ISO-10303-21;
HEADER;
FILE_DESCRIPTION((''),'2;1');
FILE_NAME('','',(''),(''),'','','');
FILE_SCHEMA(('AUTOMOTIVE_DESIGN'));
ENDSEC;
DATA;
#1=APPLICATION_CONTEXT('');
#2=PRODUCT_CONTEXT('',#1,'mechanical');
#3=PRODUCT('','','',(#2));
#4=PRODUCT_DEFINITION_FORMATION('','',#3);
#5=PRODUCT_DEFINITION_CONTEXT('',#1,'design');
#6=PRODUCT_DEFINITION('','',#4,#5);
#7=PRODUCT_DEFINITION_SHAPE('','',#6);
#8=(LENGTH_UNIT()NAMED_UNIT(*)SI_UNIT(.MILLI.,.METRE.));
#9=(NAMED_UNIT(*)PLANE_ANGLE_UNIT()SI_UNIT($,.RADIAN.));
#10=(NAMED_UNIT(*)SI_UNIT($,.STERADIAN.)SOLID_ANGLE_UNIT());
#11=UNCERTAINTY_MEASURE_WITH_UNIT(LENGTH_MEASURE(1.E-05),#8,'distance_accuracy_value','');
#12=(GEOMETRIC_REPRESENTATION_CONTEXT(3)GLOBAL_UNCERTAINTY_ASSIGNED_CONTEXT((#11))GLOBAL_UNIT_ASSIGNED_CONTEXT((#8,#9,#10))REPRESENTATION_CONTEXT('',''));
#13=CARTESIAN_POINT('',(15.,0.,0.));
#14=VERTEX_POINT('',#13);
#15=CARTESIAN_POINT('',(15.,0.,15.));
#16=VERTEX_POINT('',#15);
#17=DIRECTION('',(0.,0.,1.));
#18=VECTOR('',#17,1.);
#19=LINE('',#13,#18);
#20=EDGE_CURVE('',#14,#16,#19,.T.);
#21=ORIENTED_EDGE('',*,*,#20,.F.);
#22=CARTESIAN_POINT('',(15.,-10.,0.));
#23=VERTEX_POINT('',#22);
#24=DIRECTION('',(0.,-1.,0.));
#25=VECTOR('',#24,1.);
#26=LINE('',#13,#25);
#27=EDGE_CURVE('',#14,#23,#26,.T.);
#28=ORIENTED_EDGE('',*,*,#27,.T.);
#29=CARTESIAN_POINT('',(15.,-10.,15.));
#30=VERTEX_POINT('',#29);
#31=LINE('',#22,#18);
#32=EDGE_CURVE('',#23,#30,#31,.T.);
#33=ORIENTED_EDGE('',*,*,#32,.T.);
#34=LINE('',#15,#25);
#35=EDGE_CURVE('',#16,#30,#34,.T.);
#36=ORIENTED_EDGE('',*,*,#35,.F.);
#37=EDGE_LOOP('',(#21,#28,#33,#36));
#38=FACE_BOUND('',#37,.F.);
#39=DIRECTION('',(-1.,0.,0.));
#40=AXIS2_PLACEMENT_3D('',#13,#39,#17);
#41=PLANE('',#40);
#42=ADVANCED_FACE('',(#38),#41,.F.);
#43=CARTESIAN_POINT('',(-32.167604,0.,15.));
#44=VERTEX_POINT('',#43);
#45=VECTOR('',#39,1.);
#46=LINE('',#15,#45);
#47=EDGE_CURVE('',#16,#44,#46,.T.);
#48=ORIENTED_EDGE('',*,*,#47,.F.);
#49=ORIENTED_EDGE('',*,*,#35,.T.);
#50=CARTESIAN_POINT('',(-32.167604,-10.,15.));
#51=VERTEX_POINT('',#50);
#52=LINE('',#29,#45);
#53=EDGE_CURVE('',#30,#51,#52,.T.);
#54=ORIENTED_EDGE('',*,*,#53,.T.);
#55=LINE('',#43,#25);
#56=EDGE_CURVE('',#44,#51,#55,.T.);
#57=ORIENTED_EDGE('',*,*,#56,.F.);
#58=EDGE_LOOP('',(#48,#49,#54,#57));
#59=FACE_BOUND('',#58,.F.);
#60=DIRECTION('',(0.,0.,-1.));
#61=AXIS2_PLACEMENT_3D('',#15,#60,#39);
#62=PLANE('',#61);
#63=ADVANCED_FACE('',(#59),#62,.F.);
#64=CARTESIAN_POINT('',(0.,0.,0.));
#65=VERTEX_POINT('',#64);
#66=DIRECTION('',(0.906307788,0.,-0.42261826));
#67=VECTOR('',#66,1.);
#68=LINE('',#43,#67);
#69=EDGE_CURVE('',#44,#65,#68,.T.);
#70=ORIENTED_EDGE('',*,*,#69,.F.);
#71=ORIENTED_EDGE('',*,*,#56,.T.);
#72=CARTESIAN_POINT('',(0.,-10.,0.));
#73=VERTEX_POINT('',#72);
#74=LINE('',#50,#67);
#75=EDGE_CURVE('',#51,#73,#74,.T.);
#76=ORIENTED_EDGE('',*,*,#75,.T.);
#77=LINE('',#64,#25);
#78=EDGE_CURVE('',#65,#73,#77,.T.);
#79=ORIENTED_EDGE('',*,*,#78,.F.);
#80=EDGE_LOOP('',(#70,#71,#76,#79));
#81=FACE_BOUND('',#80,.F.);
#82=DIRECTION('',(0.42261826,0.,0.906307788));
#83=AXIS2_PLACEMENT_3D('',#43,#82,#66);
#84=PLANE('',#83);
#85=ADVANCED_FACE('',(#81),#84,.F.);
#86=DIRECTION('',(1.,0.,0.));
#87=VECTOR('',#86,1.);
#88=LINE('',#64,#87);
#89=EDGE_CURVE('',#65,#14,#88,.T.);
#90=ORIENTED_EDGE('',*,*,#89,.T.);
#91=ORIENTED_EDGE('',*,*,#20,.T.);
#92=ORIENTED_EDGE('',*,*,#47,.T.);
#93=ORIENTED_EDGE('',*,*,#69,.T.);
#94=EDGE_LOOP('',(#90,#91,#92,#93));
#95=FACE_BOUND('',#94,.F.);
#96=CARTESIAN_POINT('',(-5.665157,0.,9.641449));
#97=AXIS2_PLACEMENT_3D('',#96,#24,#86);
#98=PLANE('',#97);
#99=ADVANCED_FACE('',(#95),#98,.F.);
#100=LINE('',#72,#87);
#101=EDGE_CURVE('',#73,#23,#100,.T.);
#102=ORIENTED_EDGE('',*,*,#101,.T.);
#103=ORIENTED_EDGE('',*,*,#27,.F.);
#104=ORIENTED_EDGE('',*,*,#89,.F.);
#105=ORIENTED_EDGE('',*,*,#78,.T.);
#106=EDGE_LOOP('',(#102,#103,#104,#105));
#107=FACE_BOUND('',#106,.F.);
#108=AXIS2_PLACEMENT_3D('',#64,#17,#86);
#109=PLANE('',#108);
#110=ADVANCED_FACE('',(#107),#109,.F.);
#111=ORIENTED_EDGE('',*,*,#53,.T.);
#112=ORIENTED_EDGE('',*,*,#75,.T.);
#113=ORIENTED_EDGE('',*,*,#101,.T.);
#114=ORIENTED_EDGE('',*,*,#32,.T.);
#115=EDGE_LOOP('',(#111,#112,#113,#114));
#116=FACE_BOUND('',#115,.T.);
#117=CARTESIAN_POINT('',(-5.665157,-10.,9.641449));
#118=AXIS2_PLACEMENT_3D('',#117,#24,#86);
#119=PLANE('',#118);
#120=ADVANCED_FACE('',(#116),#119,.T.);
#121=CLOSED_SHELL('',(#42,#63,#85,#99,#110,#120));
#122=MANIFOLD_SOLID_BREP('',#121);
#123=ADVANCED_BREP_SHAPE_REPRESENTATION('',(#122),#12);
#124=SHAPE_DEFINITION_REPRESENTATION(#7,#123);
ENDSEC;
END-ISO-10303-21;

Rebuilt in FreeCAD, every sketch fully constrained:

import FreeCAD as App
import Part
import Sketcher

V = App.Vector
Q = App.Units.Quantity


def add_polygon(sketch, points):
    """Adds a closed chain of lines whose ends are joined by coincident constraints."""
    first, n = sketch.GeometryCount, len(points)
    for a, b in zip(points, points[1:] + points[:1]):
        sketch.addGeometry(Part.LineSegment(App.Vector(*a, 0), App.Vector(*b, 0)), False)
    for i in range(n):
        sketch.addConstraint(Sketcher.Constraint("Coincident", first + i, 2, first + (i + 1) % n, 1))

doc = App.newDocument("Part")
body = doc.addObject("PartDesign::Body", "Body")

# Sketch on XZ plane
sketch1 = body.newObject("Sketcher::SketchObject", "Sketch")
sketch1.AttachmentSupport = (doc.getObject("XZ_Plane"), [""])
sketch1.MapMode = "FlatFace"
add_polygon(sketch1, [(0, 0), (15, 0), (15, 15), (-32, 15)])  # lines 0-3
sketch1.addConstraint([
    Sketcher.Constraint("Horizontal", 0),
    Sketcher.Constraint("Vertical", 1),
    Sketcher.Constraint("Horizontal", 2),
    Sketcher.Constraint("Coincident", 3, 2, -1, 1),
    Sketcher.Constraint("Equal", 0, 1),
    Sketcher.Constraint("DistanceX", 0, 1, 0, 2, 15.0),
    Sketcher.Constraint("Angle", 3, Q("-25 deg")),
])
pad1 = body.newObject("PartDesign::Pad", "Pad")
pad1.Profile = sketch1
pad1.Length = 10

doc.recompute()
